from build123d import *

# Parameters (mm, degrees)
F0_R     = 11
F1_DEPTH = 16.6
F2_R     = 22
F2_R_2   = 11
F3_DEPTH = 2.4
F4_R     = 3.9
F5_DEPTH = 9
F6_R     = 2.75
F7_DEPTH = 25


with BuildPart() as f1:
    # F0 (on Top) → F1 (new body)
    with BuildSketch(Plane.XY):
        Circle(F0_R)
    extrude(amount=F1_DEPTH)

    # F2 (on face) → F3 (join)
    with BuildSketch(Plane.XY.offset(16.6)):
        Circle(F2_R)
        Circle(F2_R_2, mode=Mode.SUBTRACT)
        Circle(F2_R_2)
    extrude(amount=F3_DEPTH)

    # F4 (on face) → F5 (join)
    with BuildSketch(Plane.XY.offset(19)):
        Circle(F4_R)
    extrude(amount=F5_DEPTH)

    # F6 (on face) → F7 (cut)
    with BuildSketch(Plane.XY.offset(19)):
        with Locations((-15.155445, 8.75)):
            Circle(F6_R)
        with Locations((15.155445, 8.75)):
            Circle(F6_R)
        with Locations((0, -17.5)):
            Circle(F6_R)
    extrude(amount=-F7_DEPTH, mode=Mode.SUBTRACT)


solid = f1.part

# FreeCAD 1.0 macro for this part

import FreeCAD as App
import Part
import Sketcher
Q = App.Units.Quantity

doc = App.newDocument("Part")
body = doc.addObject("PartDesign::Body", "Body")

# Sketch on XY plane
sketch1 = doc.addObject("Sketcher::SketchObject", "Sketch")
body.addObject(sketch1)
sketch1.AttachmentSupport = (doc.XY_Plane, [""])
sketch1.MapMode = "FlatFace"
sketch1.addGeometry(Part.Circle(App.Vector(0, 0, 0), App.Vector(0, 0, 1), 11), False)
sketch1.addConstraint(Sketcher.Constraint("Coincident", 0, 3, -1, 1))
sketch1.addConstraint(Sketcher.Constraint("Diameter", 0, Q("22 mm")))
pad1 = doc.addObject("PartDesign::Pad", "Pad")
body.addObject(pad1)
pad1.Profile = sketch1
pad1.Length = 16.6

# Sketch on XY plane
sketch2 = doc.addObject("Sketcher::SketchObject", "Sketch001")
body.addObject(sketch2)
sketch2.AttachmentSupport = (doc.XY_Plane, [""])
sketch2.MapMode = "FlatFace"
sketch2.AttachmentOffset = App.Placement(App.Vector(0, 0, 16.6), App.Rotation())
sketch2.addGeometry(Part.Circle(App.Vector(0, 0, 0), App.Vector(0, 0, 1), 22), False)
sketch2.addConstraint(Sketcher.Constraint("Coincident", 0, 3, -1, 1))
sketch2.addConstraint(Sketcher.Constraint("Diameter", 0, Q("44 mm")))
pad2 = doc.addObject("PartDesign::Pad", "Pad001")
body.addObject(pad2)
pad2.Profile = sketch2
pad2.Length = 2.4

# Sketch on XY plane
sketch3 = doc.addObject("Sketcher::SketchObject", "Sketch002")
body.addObject(sketch3)
sketch3.AttachmentSupport = (doc.XY_Plane, [""])
sketch3.MapMode = "FlatFace"
sketch3.AttachmentOffset = App.Placement(App.Vector(0, 0, 19), App.Rotation())
sketch3.addGeometry(Part.Circle(App.Vector(0, 0, 0), App.Vector(0, 0, 1), 3.9), False)
sketch3.addConstraint(Sketcher.Constraint("Coincident", 0, 3, -1, 1))
sketch3.addConstraint(Sketcher.Constraint("Diameter", 0, Q("7.8 mm")))
pad3 = doc.addObject("PartDesign::Pad", "Pad002")
body.addObject(pad3)
pad3.Profile = sketch3
pad3.Length = 9

# Sketch on XY plane
sketch4 = doc.addObject("Sketcher::SketchObject", "Sketch003")
body.addObject(sketch4)
sketch4.AttachmentSupport = (doc.XY_Plane, [""])
sketch4.MapMode = "FlatFace"
sketch4.AttachmentOffset = App.Placement(App.Vector(0, 0, 19), App.Rotation())
sketch4.addGeometry(Part.Circle(App.Vector(-15.155445, 8.75, 0), App.Vector(0, 0, 1), 2.75), False)
sketch4.addGeometry(Part.Circle(App.Vector(15.155445, 8.75, 0), App.Vector(0, 0, 1), 2.75), False)
sketch4.addGeometry(Part.Circle(App.Vector(0, -17.5, 0), App.Vector(0, 0, 1), 2.75), False)
sketch4.addConstraint(Sketcher.Constraint("Equal", 0, 1))
sketch4.addConstraint(Sketcher.Constraint("Equal", 1, 2))
sketch4.addConstraint(Sketcher.Constraint("Symmetric", 0, 3, 1, 3, -2))
sketch4.addConstraint(Sketcher.Constraint("PointOnObject", 2, 3, -2))
sketch4.addConstraint(Sketcher.Constraint("Diameter", 0, Q("5.5 mm")))
sketch4.addConstraint(Sketcher.Constraint("DistanceY", 2, 3, -1, 1, Q("17.5 mm")))
sketch4.addConstraint(Sketcher.Constraint("DistanceY", -1, 1, 0, 3, Q("8.75 mm")))
sketch4.addConstraint(Sketcher.Constraint("DistanceX", 0, 3, 1, 3, Q("30.31089 mm")))
pocket1 = doc.addObject("PartDesign::Pocket", "Pocket")
body.addObject(pocket1)
pocket1.Profile = sketch4
pocket1.Length = 25

doc.recompute()
